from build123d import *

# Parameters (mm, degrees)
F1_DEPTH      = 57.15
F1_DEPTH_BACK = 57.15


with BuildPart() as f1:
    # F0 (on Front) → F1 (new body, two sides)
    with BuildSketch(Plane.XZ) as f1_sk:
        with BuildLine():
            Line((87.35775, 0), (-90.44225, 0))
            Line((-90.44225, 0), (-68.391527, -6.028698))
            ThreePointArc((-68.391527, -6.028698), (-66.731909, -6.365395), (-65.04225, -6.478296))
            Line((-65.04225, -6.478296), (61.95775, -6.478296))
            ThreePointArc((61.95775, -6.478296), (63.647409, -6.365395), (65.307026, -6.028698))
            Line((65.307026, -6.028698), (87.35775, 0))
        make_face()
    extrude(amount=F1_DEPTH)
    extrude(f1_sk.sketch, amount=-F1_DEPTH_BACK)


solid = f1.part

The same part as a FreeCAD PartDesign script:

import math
import FreeCAD as App
import Part
import Sketcher
from FreeCAD import Vector
Q = App.Units.Quantity

doc = App.newDocument("Part")
body = doc.addObject("PartDesign::Body", "Body")

sketch1 = body.newObject("Sketcher::SketchObject", "Sketch")
sketch1.AttachmentSupport = (doc.getObject("XZ_Plane"), [""])
sketch1.MapMode = "FlatFace"
sketch1.addGeometry(Part.LineSegment(Vector(87.35775, 0, 0), Vector(-90.44225, 0, 0)), False)
sketch1.addGeometry(Part.LineSegment(Vector(-90.44225, 0, 0), Vector(-68.391527, -6.028698, 0)), False)
sketch1.addGeometry(Part.ArcOfCircle(Part.Circle(Vector(-65.042254, 6.221678, 0), Vector(0, 0, 1), 12.699974), math.radians(-105.291075), math.radians(-89.99998)), False)
sketch1.addGeometry(Part.LineSegment(Vector(-65.04225, -6.478296, 0), Vector(61.95775, -6.478296, 0)), False)
sketch1.addGeometry(Part.ArcOfCircle(Part.Circle(Vector(61.957755, 6.221663, 0), Vector(0, 0, 1), 12.699959), math.radians(-90.000024), math.radians(-74.708916)), False)
sketch1.addGeometry(Part.LineSegment(Vector(65.307026, -6.028698, 0), Vector(87.35775, 0, 0)), False)
sketch1.addConstraint(Sketcher.Constraint("Coincident", 0, 2, 1, 1))
sketch1.addConstraint(Sketcher.Constraint("Coincident", 1, 2, 2, 1))
sketch1.addConstraint(Sketcher.Constraint("Coincident", 2, 2, 3, 1))
sketch1.addConstraint(Sketcher.Constraint("Coincident", 3, 2, 4, 1))
sketch1.addConstraint(Sketcher.Constraint("Coincident", 4, 2, 5, 1))
sketch1.addConstraint(Sketcher.Constraint("Coincident", 5, 2, 0, 1))
sketch1.addConstraint(Sketcher.Constraint("Horizontal", 0))
sketch1.addConstraint(Sketcher.Constraint("Horizontal", 3))
sketch1.addConstraint(Sketcher.Constraint("PointOnObject", 0, 2, -1))
sketch1.addConstraint(Sketcher.Constraint("DistanceX", 0, 2, 0, 1, Q("7 in")))
sketch1.addConstraint(Sketcher.Constraint("DistanceX", 3, 1, 3, 2, Q("5 in")))
sketch1.addConstraint(Sketcher.Constraint("DistanceX", 0, 2, 2, 3, Q("0.9999998 in")))
sketch1.addConstraint(Sketcher.Constraint("DistanceX", 0, 2, 2, 2, Q("1 in")))
sketch1.addConstraint(Sketcher.Constraint("Distance", 1, Q("0.9 in")))
sketch1.addConstraint(Sketcher.Constraint("Distance", 5, Q("0.9 in")))
sketch1.addConstraint(Sketcher.Constraint("Radius", 4, Q("12.699959 mm")))
sketch1.addConstraint(Sketcher.Constraint("Radius", 2, Q("12.699974 mm")))
sketch1.addConstraint(Sketcher.Constraint("DistanceY", 1, 2, -1, 1, Q("6.028698 mm")))
sketch1.addConstraint(Sketcher.Constraint("DistanceY", 3, 2, 4, 2, Q("0.449598 mm")))
sketch1.addConstraint(Sketcher.Constraint("DistanceX", 0, 2, -1, 1, Q("90.44225 mm")))
pad1 = body.newObject("PartDesign::Pad", "Pad")
pad1.Profile = sketch1
pad1.Type = "TwoLengths"
pad1.Length = Q("2.25 in")
pad1.Length2 = Q("2.25 in")

doc.recompute()
